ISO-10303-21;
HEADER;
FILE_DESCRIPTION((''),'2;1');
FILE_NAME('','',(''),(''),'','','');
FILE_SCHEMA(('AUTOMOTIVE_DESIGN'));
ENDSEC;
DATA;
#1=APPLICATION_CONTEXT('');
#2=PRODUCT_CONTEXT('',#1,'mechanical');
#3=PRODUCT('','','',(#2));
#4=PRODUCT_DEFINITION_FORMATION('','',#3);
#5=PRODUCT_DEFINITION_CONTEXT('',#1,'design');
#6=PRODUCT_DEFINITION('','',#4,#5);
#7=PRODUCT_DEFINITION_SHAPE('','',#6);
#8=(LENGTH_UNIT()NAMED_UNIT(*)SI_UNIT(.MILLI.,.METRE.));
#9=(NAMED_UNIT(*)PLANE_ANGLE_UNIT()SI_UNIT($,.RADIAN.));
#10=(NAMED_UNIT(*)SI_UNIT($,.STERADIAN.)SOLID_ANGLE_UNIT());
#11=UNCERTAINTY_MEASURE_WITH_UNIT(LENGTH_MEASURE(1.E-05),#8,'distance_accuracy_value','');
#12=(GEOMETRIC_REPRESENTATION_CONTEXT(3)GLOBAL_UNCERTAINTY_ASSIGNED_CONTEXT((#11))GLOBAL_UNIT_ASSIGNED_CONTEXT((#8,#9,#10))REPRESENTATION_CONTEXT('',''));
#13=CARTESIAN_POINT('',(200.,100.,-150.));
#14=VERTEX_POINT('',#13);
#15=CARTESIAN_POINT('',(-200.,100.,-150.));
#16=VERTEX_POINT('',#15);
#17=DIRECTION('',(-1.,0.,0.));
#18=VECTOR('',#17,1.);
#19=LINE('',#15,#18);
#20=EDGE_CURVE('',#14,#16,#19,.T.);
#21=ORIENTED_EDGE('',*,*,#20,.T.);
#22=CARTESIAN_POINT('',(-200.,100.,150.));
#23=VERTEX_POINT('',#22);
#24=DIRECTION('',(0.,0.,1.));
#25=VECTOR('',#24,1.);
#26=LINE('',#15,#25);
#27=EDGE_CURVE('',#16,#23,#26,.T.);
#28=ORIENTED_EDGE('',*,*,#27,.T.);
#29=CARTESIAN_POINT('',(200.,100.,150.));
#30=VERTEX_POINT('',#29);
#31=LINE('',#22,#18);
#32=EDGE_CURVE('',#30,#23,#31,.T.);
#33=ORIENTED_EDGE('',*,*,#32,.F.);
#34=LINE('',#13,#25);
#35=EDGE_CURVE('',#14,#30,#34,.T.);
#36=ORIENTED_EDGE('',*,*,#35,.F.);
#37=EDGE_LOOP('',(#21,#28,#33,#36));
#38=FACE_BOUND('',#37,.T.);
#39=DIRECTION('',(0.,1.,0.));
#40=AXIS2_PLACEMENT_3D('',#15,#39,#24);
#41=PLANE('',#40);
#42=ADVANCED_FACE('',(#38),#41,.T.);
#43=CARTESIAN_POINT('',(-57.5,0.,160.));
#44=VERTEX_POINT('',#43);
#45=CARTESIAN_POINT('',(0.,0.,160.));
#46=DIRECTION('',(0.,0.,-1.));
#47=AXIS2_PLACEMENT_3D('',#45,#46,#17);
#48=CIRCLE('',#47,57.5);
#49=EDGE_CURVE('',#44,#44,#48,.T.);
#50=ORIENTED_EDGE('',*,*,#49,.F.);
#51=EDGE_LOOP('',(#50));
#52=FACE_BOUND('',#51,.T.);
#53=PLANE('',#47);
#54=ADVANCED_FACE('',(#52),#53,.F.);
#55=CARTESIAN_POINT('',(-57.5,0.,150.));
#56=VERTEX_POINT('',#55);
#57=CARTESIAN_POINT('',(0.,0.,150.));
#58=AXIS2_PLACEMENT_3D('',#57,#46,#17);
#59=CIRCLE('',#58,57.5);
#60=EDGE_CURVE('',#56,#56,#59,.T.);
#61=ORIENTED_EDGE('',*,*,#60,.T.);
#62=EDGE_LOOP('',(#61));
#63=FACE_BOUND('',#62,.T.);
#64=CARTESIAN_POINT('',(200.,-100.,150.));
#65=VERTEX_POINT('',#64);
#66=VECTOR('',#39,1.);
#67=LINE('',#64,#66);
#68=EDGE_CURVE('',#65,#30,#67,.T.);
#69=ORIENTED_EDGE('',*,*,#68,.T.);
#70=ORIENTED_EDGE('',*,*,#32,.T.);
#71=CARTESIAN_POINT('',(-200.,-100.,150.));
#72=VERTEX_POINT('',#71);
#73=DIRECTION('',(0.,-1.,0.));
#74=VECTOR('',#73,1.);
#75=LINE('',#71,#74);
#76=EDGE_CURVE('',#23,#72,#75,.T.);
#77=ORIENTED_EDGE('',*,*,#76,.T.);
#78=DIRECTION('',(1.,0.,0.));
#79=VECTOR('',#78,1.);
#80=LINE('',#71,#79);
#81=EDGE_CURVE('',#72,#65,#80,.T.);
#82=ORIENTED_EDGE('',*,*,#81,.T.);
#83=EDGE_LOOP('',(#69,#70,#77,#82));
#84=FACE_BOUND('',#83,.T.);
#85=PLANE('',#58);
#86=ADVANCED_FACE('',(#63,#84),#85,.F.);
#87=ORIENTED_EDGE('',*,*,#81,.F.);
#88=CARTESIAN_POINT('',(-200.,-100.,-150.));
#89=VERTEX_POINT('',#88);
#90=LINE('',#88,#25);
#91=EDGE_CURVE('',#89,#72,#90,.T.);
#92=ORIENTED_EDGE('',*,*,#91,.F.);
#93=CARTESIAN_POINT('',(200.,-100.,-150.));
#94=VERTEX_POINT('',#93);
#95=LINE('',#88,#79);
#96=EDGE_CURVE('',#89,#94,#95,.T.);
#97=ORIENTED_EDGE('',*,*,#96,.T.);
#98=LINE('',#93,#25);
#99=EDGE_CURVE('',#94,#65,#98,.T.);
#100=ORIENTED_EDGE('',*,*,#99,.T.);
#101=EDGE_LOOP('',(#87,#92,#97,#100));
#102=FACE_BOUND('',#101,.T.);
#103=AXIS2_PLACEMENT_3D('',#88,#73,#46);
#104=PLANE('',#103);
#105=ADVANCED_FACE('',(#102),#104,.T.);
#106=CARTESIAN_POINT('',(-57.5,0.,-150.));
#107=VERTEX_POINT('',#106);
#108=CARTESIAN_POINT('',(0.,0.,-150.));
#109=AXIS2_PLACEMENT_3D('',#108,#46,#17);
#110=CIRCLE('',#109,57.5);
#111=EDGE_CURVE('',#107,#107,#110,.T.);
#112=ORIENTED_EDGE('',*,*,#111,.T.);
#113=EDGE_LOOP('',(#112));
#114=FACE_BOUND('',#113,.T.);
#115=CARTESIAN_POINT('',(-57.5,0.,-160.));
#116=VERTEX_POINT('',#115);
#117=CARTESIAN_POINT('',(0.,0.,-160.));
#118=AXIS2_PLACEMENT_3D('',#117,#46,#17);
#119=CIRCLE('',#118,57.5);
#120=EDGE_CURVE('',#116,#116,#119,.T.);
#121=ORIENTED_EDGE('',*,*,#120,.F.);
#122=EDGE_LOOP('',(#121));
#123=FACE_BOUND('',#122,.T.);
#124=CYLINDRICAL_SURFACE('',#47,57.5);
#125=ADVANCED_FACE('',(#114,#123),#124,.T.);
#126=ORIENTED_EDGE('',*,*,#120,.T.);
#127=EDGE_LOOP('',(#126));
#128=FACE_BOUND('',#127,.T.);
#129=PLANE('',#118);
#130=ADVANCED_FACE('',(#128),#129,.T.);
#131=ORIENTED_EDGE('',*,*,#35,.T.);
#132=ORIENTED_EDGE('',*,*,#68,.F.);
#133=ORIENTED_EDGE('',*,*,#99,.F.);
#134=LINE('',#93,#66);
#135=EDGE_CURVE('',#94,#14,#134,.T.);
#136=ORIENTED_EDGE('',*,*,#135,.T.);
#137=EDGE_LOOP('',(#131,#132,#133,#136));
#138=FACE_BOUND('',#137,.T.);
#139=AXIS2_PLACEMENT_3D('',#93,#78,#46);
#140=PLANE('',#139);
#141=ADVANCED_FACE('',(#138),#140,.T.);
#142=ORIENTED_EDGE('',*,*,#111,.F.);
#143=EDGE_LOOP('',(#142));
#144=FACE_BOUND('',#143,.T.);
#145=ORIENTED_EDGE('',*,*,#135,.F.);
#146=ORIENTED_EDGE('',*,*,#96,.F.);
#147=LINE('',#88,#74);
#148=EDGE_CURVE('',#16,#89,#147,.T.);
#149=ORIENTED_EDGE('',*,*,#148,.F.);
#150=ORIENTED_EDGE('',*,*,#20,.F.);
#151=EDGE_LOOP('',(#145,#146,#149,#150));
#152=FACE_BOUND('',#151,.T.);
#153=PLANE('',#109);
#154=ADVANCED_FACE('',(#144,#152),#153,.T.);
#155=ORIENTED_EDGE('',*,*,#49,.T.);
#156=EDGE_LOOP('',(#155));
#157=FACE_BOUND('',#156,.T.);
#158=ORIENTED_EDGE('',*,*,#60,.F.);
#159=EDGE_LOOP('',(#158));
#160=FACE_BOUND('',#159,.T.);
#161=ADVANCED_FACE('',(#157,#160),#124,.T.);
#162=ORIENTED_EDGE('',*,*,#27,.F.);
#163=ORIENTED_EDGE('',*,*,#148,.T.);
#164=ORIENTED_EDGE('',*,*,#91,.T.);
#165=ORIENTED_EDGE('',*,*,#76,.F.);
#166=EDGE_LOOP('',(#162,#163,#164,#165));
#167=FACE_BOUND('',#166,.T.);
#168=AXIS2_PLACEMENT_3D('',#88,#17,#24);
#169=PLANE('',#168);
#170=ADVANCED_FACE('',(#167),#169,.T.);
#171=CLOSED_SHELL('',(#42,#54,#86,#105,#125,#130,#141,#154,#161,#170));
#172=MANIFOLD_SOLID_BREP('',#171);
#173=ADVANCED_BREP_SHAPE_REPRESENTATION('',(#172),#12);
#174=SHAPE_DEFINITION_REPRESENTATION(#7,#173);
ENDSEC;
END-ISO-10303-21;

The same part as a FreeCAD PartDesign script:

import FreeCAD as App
import Part
import Sketcher
from FreeCAD import Vector
Q = App.Units.Quantity

doc = App.newDocument("Part")
params = doc.addObject("Spreadsheet::Sheet", "Params")
for row, (alias, value) in enumerate([
    ("sketch1_width", "400 mm"),
    ("sketch1_height", "200 mm"),
    ("pad1_length", "150 mm"),
    ("pad1_length2", "150 mm"),
    ("sketch2_diameter", "115 mm"),
    ("pad2_length", "160 mm"),
    ("pad2_length2", "160 mm"),
], start=1):
    params.set(f"A{row}", alias)
    params.set(f"B{row}", "=" + value)
    params.setAlias(f"B{row}", alias)

body = doc.addObject("PartDesign::Body", "Body")

# Sketch on XY plane
sketch1 = doc.addObject("Sketcher::SketchObject", "Sketch")
body.addObject(sketch1)
sketch1.AttachmentSupport = (doc.XY_Plane, [""])
sketch1.MapMode = "FlatFace"
sketch1.addGeometry([
    Part.LineSegment(Vector(-200, 100, 0), Vector(-200, -100, 0)),
    Part.LineSegment(Vector(-200, -100, 0), Vector(200, -100, 0)),
    Part.LineSegment(Vector(200, -100, 0), Vector(200, 100, 0)),
    Part.LineSegment(Vector(200, 100, 0), Vector(-200, 100, 0)),
], False)
sketch1.addConstraint([
    Sketcher.Constraint("Coincident", 0, 2, 1, 1),
    Sketcher.Constraint("Coincident", 1, 2, 2, 1),
    Sketcher.Constraint("Coincident", 2, 2, 3, 1),
    Sketcher.Constraint("Coincident", 3, 2, 0, 1),
    Sketcher.Constraint("Vertical", 0),
    Sketcher.Constraint("Horizontal", 1),
    Sketcher.Constraint("Vertical", 2),
    Sketcher.Constraint("Horizontal", 3),
    Sketcher.Constraint("Symmetric", 0, 2, 2, 2, -1, 1),
    Sketcher.Constraint("DistanceX", 1, 1, 1, 2, Q("400 mm")),
    Sketcher.Constraint("DistanceY", 0, 2, 0, 1, Q("200 mm")),
])
sketch1.setExpression("Constraints[9]", "Params.sketch1_width")
sketch1.setExpression("Constraints[10]", "Params.sketch1_height")
pad1 = doc.addObject("PartDesign::Pad", "Pad")
body.addObject(pad1)
pad1.Profile = sketch1
pad1.Type = "TwoLengths"
pad1.setExpression("Length", "Params.pad1_length")
pad1.setExpression("Length2", "Params.pad1_length2")

# Sketch on XY plane
sketch2 = doc.addObject("Sketcher::SketchObject", "Sketch001")
body.addObject(sketch2)
sketch2.AttachmentSupport = (doc.XY_Plane, [""])
sketch2.MapMode = "FlatFace"
sketch2.addGeometry(Part.Circle(Vector(0, 0, 0), Vector(0, 0, 1), 57.5), False)
sketch2.addConstraint([
    Sketcher.Constraint("Coincident", 0, 3, -1, 1),
    Sketcher.Constraint("Diameter", 0, Q("115 mm")),
])
sketch2.setExpression("Constraints[1]", "Params.sketch2_diameter")
pad2 = doc.addObject("PartDesign::Pad", "Pad001")
body.addObject(pad2)
pad2.Profile = sketch2
pad2.Type = "TwoLengths"
pad2.setExpression("Length", "Params.pad2_length")
pad2.setExpression("Length2", "Params.pad2_length2")
pad2.Reversed = True

doc.recompute()
